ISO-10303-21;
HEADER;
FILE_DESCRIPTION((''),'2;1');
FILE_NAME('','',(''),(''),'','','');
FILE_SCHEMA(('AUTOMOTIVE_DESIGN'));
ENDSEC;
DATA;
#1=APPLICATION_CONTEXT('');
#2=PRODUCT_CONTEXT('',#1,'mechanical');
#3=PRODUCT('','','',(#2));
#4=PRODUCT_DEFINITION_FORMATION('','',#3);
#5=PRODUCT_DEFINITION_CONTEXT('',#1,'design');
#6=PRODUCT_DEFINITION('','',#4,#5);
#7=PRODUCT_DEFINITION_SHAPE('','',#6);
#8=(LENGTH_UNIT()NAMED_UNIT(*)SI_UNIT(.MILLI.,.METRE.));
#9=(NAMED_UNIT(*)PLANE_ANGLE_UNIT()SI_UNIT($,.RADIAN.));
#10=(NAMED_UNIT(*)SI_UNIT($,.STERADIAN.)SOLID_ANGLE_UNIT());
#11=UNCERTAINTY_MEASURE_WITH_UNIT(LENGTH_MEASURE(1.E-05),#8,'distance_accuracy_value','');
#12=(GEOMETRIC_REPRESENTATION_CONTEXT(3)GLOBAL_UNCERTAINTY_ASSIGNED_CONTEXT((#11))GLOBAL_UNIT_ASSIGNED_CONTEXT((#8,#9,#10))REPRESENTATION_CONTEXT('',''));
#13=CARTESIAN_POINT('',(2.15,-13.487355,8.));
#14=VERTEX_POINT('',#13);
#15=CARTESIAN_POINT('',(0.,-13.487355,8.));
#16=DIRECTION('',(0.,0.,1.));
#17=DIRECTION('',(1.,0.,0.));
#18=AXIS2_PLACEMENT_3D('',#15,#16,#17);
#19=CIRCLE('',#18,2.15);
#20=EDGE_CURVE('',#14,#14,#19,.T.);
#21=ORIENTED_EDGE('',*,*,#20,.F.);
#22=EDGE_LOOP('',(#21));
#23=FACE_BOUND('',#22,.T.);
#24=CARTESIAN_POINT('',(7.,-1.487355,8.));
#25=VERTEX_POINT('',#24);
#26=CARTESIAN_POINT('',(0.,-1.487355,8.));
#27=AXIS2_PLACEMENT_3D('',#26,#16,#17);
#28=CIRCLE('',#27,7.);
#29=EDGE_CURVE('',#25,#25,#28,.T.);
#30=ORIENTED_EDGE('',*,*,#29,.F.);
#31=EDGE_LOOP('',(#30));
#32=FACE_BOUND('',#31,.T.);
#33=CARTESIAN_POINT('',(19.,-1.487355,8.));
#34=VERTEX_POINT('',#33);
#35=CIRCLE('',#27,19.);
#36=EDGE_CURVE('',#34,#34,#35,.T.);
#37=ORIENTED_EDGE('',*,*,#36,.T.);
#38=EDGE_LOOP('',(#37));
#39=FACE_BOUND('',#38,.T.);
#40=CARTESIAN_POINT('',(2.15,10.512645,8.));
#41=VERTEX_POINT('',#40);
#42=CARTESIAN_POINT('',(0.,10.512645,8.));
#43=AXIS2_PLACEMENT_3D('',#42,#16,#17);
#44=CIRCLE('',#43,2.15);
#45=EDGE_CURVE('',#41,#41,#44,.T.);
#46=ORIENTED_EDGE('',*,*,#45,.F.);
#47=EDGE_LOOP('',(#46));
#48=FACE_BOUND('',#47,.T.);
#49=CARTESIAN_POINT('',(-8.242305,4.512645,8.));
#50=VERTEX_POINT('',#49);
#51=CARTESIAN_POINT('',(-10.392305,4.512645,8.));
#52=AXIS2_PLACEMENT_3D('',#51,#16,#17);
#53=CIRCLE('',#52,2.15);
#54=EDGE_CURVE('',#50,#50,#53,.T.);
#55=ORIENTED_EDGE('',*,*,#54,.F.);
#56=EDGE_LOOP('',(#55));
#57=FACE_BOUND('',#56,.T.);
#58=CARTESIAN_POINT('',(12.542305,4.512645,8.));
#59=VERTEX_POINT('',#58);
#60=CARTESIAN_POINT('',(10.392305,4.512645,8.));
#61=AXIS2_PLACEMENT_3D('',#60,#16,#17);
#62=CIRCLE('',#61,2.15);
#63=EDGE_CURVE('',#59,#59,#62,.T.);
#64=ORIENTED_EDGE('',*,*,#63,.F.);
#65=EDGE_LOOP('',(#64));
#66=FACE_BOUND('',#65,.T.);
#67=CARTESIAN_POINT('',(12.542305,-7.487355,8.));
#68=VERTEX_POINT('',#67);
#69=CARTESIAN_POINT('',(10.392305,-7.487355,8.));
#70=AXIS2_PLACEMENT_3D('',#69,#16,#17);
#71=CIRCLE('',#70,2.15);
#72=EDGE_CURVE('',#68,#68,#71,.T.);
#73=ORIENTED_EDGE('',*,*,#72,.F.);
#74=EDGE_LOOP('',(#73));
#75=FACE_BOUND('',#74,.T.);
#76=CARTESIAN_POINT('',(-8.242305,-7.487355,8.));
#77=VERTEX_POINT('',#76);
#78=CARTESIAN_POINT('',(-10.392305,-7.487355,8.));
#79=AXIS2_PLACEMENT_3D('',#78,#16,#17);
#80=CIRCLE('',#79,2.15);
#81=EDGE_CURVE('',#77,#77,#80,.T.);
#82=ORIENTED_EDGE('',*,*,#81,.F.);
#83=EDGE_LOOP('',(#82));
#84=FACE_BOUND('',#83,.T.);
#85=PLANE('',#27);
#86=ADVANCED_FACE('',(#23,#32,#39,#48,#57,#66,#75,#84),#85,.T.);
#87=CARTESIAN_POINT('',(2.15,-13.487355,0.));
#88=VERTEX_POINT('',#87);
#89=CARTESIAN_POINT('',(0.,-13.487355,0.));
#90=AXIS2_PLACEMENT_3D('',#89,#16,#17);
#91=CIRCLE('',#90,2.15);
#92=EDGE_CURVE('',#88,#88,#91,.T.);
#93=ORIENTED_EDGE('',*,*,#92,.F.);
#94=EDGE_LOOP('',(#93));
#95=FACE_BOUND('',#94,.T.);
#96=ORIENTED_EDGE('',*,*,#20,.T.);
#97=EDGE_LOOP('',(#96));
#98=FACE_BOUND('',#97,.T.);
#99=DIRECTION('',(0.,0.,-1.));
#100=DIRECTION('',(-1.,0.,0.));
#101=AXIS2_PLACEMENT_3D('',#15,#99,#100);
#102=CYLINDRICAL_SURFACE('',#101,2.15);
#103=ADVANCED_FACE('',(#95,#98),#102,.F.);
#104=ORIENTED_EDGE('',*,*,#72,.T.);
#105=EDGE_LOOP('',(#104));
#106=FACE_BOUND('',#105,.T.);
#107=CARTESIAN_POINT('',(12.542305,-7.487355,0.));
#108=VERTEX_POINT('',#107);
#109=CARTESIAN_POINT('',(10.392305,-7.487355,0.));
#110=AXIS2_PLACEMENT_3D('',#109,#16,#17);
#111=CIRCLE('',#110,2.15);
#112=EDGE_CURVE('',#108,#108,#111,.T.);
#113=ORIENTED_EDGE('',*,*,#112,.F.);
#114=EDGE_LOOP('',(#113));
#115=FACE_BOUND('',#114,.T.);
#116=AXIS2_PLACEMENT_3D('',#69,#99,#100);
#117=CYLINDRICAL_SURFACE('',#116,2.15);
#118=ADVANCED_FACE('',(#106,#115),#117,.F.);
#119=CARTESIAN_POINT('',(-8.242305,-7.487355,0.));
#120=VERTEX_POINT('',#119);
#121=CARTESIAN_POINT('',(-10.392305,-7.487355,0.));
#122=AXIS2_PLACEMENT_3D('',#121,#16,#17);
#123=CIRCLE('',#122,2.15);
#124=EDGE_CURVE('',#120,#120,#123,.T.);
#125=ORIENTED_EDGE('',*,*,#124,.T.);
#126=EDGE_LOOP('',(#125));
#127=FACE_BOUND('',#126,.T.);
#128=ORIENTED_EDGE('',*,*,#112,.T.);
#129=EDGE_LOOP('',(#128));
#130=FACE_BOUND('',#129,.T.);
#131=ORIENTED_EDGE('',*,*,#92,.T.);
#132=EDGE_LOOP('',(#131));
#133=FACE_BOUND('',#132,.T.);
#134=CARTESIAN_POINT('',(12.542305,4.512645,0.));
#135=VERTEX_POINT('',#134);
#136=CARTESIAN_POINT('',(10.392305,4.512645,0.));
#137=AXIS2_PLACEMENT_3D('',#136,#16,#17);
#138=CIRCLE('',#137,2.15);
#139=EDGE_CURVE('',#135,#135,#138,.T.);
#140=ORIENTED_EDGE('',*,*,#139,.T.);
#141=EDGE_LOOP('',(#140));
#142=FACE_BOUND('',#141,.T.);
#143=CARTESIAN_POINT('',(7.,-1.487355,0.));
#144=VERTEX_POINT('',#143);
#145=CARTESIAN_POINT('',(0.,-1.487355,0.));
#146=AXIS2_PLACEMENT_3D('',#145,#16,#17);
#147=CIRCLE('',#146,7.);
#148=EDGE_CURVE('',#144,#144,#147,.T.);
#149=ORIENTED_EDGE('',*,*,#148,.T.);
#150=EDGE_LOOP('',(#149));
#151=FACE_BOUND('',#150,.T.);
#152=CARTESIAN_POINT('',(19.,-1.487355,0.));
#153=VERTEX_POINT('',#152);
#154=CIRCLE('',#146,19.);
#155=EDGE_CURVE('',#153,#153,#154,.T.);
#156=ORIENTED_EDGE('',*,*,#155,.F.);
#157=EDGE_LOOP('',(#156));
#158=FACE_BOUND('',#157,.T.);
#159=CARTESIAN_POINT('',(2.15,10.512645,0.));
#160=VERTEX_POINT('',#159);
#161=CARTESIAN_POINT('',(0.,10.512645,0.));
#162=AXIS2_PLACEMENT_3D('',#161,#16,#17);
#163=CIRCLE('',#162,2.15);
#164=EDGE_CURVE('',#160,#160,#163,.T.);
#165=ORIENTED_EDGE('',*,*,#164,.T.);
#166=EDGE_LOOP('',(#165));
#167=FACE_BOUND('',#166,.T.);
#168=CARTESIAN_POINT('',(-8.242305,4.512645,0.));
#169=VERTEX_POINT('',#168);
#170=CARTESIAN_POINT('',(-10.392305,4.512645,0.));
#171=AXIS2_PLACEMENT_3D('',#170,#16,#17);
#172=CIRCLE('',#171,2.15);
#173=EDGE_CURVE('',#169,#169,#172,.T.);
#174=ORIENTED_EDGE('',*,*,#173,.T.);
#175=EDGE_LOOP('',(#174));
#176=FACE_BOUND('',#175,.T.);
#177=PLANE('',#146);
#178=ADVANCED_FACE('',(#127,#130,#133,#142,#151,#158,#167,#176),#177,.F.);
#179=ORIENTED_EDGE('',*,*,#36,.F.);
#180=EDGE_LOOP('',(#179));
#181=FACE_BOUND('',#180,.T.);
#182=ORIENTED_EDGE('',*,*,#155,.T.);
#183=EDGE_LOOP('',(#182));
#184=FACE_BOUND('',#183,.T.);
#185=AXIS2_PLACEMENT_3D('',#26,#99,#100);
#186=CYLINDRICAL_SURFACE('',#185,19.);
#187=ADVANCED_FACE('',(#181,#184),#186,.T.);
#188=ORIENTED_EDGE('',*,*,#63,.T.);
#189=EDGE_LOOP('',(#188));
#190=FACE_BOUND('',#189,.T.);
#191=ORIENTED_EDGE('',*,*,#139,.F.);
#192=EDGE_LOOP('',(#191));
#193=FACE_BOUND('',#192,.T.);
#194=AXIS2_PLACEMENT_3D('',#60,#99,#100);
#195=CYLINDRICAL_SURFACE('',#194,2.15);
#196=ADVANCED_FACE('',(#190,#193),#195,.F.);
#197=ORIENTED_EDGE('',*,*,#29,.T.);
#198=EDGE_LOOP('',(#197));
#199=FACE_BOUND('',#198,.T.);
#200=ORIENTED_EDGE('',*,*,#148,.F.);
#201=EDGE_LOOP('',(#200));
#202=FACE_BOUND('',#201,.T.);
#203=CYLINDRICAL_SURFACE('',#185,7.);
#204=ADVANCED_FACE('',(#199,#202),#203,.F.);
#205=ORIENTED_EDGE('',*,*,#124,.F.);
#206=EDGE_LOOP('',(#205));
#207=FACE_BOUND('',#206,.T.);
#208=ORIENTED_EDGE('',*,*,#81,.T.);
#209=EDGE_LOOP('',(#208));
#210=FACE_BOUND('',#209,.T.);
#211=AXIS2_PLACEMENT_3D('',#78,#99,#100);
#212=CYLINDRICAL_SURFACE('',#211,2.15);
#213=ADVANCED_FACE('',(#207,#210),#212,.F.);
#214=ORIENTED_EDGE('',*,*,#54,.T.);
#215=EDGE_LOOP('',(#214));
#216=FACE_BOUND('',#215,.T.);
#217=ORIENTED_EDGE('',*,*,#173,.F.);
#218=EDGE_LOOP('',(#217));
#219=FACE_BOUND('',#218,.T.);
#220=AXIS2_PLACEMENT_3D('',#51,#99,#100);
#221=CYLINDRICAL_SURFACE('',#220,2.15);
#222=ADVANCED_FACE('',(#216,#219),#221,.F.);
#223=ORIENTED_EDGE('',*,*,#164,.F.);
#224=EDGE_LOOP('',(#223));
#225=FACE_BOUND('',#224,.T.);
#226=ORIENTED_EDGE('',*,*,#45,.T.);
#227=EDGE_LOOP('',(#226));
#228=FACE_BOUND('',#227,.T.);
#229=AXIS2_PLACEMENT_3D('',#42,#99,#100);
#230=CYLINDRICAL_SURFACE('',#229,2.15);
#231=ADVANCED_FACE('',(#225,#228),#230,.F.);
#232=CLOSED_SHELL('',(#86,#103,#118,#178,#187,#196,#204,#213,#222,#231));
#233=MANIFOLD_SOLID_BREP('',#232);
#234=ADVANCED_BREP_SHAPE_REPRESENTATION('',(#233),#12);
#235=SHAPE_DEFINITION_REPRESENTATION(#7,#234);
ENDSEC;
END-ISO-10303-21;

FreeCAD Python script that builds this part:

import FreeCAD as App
import Part
import Sketcher
Q = App.Units.Quantity

doc = App.newDocument("Part")
body = doc.addObject("PartDesign::Body", "Body")

# Sketch on XY plane
sketch1 = doc.addObject("Sketcher::SketchObject", "Sketch")
body.addObject(sketch1)
sketch1.AttachmentSupport = (doc.XY_Plane, [""])
sketch1.MapMode = "FlatFace"
sketch1.addGeometry(Part.Circle(App.Vector(0, -1.5, 0), App.Vector(0, 0, 1), 19), False)
sketch1.addGeometry(Part.Circle(App.Vector(-10.4, -7.5, 0), App.Vector(0, 0, 1), 2.1), False)
sketch1.addGeometry(Part.Circle(App.Vector(0, -13.5, 0), App.Vector(0, 0, 1), 2.1), False)
sketch1.addGeometry(Part.Circle(App.Vector(10.4, -7.5, 0), App.Vector(0, 0, 1), 2.1), False)
sketch1.addGeometry(Part.Circle(App.Vector(-10.4, 4.5, 0), App.Vector(0, 0, 1), 2.1), False)
sketch1.addGeometry(Part.Circle(App.Vector(0, -1.5, 0), App.Vector(0, 0, 1), 7), False)
sketch1.addGeometry(Part.Circle(App.Vector(10.4, 4.5, 0), App.Vector(0, 0, 1), 2.1), False)
sketch1.addGeometry(Part.Circle(App.Vector(0, 10.5, 0), App.Vector(0, 0, 1), 2.1), False)
sketch1.addConstraint(Sketcher.Constraint("Coincident", 5, 3, 0, 3))
sketch1.addConstraint(Sketcher.Constraint("Equal", 1, 2))
sketch1.addConstraint(Sketcher.Constraint("Equal", 2, 3))
sketch1.addConstraint(Sketcher.Constraint("Equal", 3, 4))
sketch1.addConstraint(Sketcher.Constraint("Equal", 4, 6))
sketch1.addConstraint(Sketcher.Constraint("Equal", 6, 7))
sketch1.addConstraint(Sketcher.Constraint("Symmetric", 1, 3, 3, 3, -2))
sketch1.addConstraint(Sketcher.Constraint("Symmetric", 4, 3, 6, 3, -2))
sketch1.addConstraint(Sketcher.Constraint("PointOnObject", 0, 3, -2))
sketch1.addConstraint(Sketcher.Constraint("PointOnObject", 2, 3, -2))
sketch1.addConstraint(Sketcher.Constraint("PointOnObject", 7, 3, -2))
sketch1.addConstraint(Sketcher.Constraint("Vertical", 1, 3, 4, 3))
sketch1.addConstraint(Sketcher.Constraint("Diameter", 0, Q("38 mm")))
sketch1.addConstraint(Sketcher.Constraint("Diameter", 5, Q("14 mm")))
sketch1.addConstraint(Sketcher.Constraint("Diameter", 1, Q("4.3 mm")))
sketch1.addConstraint(Sketcher.Constraint("DistanceY", 1, 3, 0, 3, Q("6 mm")))
sketch1.addConstraint(Sketcher.Constraint("DistanceY", 2, 3, 1, 3, Q("6 mm")))
sketch1.addConstraint(Sketcher.Constraint("DistanceY", 0, 3, 4, 3, Q("6 mm")))
sketch1.addConstraint(Sketcher.Constraint("DistanceY", 4, 3, 7, 3, Q("6 mm")))
sketch1.addConstraint(Sketcher.Constraint("DistanceX", 1, 3, 3, 3, Q("20.78461 mm")))
sketch1.addConstraint(Sketcher.Constraint("DistanceY", 0, 3, -1, 1, Q("1.487355 mm")))
pad1 = doc.addObject("PartDesign::Pad", "Pad")
body.addObject(pad1)
pad1.Profile = sketch1
pad1.Length = 8

doc.recompute()
